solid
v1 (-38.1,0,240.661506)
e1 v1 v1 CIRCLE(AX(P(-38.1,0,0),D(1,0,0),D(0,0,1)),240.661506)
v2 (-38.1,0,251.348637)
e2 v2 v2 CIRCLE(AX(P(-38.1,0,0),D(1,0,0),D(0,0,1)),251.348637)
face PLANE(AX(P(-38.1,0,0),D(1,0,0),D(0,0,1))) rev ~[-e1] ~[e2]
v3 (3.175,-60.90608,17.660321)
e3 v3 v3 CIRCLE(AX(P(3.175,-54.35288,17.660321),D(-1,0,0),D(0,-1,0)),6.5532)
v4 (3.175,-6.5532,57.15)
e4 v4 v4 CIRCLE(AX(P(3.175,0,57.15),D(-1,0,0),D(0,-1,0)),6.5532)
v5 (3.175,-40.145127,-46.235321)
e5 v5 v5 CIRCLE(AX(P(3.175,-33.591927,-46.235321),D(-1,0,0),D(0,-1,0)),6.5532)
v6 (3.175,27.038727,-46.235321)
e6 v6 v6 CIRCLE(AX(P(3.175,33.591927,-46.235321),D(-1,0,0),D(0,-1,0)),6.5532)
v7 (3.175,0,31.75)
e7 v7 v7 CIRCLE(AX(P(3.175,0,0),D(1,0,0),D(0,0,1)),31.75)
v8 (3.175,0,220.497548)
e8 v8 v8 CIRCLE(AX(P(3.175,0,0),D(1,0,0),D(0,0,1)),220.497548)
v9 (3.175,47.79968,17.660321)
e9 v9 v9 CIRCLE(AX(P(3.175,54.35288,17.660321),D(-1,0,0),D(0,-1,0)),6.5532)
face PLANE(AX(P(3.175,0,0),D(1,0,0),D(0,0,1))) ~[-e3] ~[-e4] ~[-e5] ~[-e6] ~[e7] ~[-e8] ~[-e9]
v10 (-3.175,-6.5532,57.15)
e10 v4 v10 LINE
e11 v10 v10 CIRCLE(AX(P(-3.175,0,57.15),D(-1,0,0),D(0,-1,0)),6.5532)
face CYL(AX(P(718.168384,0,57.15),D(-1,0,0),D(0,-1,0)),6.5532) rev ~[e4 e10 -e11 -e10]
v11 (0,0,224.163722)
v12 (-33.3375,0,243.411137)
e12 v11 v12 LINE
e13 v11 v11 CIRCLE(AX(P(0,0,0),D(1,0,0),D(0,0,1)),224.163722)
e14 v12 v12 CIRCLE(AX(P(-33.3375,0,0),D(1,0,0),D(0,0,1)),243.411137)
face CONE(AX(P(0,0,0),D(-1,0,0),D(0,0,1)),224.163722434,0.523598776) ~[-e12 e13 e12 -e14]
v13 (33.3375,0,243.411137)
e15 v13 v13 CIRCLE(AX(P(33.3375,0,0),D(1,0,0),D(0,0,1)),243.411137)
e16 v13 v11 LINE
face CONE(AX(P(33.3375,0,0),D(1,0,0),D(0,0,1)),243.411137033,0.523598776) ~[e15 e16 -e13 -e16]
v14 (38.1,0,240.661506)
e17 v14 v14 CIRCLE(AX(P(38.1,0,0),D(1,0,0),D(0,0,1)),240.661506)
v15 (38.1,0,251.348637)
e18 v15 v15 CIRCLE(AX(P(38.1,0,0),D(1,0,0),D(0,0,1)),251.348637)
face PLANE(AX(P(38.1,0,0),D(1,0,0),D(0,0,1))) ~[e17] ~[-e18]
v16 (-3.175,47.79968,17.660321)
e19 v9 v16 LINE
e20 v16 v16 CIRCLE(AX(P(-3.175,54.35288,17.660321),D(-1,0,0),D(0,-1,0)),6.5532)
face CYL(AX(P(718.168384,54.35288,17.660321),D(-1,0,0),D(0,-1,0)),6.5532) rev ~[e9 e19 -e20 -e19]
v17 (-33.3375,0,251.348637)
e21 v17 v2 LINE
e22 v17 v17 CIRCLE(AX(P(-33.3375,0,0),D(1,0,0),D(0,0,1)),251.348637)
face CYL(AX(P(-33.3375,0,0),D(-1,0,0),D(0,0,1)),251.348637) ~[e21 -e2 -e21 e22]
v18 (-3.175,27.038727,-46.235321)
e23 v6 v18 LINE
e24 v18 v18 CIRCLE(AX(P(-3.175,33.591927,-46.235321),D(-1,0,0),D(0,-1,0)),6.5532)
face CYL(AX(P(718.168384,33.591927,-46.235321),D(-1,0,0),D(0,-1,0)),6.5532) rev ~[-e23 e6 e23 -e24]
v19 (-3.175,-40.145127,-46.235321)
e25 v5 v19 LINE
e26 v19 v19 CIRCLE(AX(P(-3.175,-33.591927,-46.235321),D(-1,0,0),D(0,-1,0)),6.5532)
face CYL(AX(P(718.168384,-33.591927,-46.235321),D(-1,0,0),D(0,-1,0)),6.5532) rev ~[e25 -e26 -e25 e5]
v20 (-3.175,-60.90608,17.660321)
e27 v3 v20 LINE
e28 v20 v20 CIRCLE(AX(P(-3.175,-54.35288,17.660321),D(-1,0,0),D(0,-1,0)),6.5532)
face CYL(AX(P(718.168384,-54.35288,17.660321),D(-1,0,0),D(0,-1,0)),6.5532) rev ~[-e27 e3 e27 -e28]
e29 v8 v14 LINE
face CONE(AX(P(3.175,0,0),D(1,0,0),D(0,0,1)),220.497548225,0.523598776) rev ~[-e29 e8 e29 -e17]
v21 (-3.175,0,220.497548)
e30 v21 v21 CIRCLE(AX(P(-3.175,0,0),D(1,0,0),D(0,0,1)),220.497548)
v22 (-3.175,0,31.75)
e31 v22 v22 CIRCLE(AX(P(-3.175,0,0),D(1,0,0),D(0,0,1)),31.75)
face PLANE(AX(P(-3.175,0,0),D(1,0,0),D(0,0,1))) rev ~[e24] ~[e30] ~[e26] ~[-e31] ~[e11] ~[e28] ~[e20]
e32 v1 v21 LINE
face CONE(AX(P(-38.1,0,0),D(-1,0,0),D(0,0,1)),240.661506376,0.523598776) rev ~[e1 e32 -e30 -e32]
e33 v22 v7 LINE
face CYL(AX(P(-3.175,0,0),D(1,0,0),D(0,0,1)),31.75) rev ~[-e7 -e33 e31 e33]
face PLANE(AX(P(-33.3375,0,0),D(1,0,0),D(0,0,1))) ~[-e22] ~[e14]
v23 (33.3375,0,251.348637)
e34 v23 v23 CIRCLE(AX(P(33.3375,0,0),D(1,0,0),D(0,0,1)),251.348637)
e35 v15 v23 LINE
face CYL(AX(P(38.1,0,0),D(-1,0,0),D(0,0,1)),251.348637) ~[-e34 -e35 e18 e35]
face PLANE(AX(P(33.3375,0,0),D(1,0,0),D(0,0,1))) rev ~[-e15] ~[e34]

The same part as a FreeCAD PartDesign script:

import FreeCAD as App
import Part
import Sketcher

V = App.Vector
Q = App.Units.Quantity


def add_polygon(sketch, points):
    """Adds a closed chain of lines whose ends are joined by coincident constraints."""
    first, n = sketch.GeometryCount, len(points)
    for a, b in zip(points, points[1:] + points[:1]):
        sketch.addGeometry(Part.LineSegment(App.Vector(*a, 0), App.Vector(*b, 0)), False)
    for i in range(n):
        sketch.addConstraint(Sketcher.Constraint("Coincident", first + i, 2, first + (i + 1) % n, 1))

doc = App.newDocument("Part")
body = doc.addObject("PartDesign::Body", "Body")

sketch1 = body.newObject("Sketcher::SketchObject", "Sketch")
sketch1.AttachmentSupport = (doc.getObject("XZ_Plane"), [""])
sketch1.MapMode = "FlatFace"
add_polygon(sketch1, [(-3.2, 220.5), (-3.2, 31.8), (3.2, 31.8), (3.2, 220.5), (38.1, 240.7), (38.1, 251.3), (33.3, 251.3), (33.3, 243.4), (0, 224.2), (-33.3, 243.4), (-33.3, 251.3), (-38.1, 251.3), (-38.1, 240.7)])
sketch1.addConstraint([
    Sketcher.Constraint("Vertical", 0),
    Sketcher.Constraint("Horizontal", 1),
    Sketcher.Constraint("Vertical", 2),
    Sketcher.Constraint("Vertical", 4),
    Sketcher.Constraint("Horizontal", 5),
    Sketcher.Constraint("Vertical", 6),
    Sketcher.Constraint("Vertical", 9),
    Sketcher.Constraint("Horizontal", 10),
    Sketcher.Constraint("Vertical", 11),
    Sketcher.Constraint("Symmetric", 6, 2, 8, 2, -2),
    Sketcher.Constraint("Symmetric", 4, 2, 10, 2, -2),
    Sketcher.Constraint("Symmetric", 2, 2, 12, 2, -2),
    Sketcher.Constraint("PointOnObject", 7, 2, -2),
    Sketcher.Constraint("Parallel", 3, 7),
    Sketcher.Constraint("Parallel", 8, 12),
    Sketcher.Constraint("Angle", 3, Q("30 deg")),
    Sketcher.Constraint("DistanceX", 1, 1, 1, 2, Q("0.25 in")),
    Sketcher.Constraint("DistanceX", -1, 1, 3, 2, Q("1.5 in")),
    Sketcher.Constraint("DistanceX", 5, 2, 5, 1, Q("0.1875 in")),
    Sketcher.Constraint("DistanceY", 6, 2, 6, 1, Q("0.3125 in")),
    Sketcher.Constraint("DistanceY", -1, 1, 0, 2, Q("1.25 in")),
    Sketcher.Constraint("DistanceY", 0, 2, 0, 1, 188.747548),
    Sketcher.Constraint("DistanceY", 4, 1, 4, 2, 10.687131),
])
revolution = body.newObject("PartDesign::Revolution", "Revolution")
revolution.Profile = sketch1
revolution.ReferenceAxis = (sketch1, ["H_Axis"])
revolution.Angle = 360

sketch2 = body.newObject("Sketcher::SketchObject", "Sketch001")
sketch2.AttachmentSupport = (doc.getObject("YZ_Plane"), [""])
sketch2.MapMode = "FlatFace"
sketch2.AttachmentOffset = App.Placement(V(0, 0, 0.125 * 25.4), App.Rotation())
sketch2.addGeometry([
    Part.Circle(V(0, 57, 0), V(0, 0, 1), 7),
    Part.Circle(V(54, 18, 0), V(0, 0, 1), 7),
    Part.Circle(V(34, -46, 0), V(0, 0, 1), 7),
    Part.Circle(V(-34, -46, 0), V(0, 0, 1), 7),
    Part.Circle(V(-54, 18, 0), V(0, 0, 1), 7),
], False)
sketch2.addConstraint([
    Sketcher.Constraint("Equal", 0, 1),
    Sketcher.Constraint("Equal", 1, 2),
    Sketcher.Constraint("Equal", 2, 3),
    Sketcher.Constraint("Equal", 3, 4),
    Sketcher.Constraint("Symmetric", 2, 3, 3, 3, -2),
    Sketcher.Constraint("Symmetric", 1, 3, 4, 3, -2),
    Sketcher.Constraint("PointOnObject", 0, 3, -2),
    Sketcher.Constraint("Diameter", 0, Q("0.516 in")),
    Sketcher.Constraint("DistanceY", -1, 1, 0, 3, Q("2.25 in")),
    Sketcher.Constraint("DistanceX", -1, 1, 1, 3, 54.35288),
    Sketcher.Constraint("DistanceY", -1, 1, 1, 3, 17.660321),
    Sketcher.Constraint("DistanceY", 2, 3, -1, 1, 46.235321),
    Sketcher.Constraint("DistanceX", -1, 1, 2, 3, 33.591927),
])
doc.recompute()
hole = body.newObject("PartDesign::Hole", "Hole")
hole.Profile = sketch2
hole.ThreadType = "None"
hole.Diameter = Q("0.516 in")
hole.DepthType = "ThroughAll"

doc.recompute()
